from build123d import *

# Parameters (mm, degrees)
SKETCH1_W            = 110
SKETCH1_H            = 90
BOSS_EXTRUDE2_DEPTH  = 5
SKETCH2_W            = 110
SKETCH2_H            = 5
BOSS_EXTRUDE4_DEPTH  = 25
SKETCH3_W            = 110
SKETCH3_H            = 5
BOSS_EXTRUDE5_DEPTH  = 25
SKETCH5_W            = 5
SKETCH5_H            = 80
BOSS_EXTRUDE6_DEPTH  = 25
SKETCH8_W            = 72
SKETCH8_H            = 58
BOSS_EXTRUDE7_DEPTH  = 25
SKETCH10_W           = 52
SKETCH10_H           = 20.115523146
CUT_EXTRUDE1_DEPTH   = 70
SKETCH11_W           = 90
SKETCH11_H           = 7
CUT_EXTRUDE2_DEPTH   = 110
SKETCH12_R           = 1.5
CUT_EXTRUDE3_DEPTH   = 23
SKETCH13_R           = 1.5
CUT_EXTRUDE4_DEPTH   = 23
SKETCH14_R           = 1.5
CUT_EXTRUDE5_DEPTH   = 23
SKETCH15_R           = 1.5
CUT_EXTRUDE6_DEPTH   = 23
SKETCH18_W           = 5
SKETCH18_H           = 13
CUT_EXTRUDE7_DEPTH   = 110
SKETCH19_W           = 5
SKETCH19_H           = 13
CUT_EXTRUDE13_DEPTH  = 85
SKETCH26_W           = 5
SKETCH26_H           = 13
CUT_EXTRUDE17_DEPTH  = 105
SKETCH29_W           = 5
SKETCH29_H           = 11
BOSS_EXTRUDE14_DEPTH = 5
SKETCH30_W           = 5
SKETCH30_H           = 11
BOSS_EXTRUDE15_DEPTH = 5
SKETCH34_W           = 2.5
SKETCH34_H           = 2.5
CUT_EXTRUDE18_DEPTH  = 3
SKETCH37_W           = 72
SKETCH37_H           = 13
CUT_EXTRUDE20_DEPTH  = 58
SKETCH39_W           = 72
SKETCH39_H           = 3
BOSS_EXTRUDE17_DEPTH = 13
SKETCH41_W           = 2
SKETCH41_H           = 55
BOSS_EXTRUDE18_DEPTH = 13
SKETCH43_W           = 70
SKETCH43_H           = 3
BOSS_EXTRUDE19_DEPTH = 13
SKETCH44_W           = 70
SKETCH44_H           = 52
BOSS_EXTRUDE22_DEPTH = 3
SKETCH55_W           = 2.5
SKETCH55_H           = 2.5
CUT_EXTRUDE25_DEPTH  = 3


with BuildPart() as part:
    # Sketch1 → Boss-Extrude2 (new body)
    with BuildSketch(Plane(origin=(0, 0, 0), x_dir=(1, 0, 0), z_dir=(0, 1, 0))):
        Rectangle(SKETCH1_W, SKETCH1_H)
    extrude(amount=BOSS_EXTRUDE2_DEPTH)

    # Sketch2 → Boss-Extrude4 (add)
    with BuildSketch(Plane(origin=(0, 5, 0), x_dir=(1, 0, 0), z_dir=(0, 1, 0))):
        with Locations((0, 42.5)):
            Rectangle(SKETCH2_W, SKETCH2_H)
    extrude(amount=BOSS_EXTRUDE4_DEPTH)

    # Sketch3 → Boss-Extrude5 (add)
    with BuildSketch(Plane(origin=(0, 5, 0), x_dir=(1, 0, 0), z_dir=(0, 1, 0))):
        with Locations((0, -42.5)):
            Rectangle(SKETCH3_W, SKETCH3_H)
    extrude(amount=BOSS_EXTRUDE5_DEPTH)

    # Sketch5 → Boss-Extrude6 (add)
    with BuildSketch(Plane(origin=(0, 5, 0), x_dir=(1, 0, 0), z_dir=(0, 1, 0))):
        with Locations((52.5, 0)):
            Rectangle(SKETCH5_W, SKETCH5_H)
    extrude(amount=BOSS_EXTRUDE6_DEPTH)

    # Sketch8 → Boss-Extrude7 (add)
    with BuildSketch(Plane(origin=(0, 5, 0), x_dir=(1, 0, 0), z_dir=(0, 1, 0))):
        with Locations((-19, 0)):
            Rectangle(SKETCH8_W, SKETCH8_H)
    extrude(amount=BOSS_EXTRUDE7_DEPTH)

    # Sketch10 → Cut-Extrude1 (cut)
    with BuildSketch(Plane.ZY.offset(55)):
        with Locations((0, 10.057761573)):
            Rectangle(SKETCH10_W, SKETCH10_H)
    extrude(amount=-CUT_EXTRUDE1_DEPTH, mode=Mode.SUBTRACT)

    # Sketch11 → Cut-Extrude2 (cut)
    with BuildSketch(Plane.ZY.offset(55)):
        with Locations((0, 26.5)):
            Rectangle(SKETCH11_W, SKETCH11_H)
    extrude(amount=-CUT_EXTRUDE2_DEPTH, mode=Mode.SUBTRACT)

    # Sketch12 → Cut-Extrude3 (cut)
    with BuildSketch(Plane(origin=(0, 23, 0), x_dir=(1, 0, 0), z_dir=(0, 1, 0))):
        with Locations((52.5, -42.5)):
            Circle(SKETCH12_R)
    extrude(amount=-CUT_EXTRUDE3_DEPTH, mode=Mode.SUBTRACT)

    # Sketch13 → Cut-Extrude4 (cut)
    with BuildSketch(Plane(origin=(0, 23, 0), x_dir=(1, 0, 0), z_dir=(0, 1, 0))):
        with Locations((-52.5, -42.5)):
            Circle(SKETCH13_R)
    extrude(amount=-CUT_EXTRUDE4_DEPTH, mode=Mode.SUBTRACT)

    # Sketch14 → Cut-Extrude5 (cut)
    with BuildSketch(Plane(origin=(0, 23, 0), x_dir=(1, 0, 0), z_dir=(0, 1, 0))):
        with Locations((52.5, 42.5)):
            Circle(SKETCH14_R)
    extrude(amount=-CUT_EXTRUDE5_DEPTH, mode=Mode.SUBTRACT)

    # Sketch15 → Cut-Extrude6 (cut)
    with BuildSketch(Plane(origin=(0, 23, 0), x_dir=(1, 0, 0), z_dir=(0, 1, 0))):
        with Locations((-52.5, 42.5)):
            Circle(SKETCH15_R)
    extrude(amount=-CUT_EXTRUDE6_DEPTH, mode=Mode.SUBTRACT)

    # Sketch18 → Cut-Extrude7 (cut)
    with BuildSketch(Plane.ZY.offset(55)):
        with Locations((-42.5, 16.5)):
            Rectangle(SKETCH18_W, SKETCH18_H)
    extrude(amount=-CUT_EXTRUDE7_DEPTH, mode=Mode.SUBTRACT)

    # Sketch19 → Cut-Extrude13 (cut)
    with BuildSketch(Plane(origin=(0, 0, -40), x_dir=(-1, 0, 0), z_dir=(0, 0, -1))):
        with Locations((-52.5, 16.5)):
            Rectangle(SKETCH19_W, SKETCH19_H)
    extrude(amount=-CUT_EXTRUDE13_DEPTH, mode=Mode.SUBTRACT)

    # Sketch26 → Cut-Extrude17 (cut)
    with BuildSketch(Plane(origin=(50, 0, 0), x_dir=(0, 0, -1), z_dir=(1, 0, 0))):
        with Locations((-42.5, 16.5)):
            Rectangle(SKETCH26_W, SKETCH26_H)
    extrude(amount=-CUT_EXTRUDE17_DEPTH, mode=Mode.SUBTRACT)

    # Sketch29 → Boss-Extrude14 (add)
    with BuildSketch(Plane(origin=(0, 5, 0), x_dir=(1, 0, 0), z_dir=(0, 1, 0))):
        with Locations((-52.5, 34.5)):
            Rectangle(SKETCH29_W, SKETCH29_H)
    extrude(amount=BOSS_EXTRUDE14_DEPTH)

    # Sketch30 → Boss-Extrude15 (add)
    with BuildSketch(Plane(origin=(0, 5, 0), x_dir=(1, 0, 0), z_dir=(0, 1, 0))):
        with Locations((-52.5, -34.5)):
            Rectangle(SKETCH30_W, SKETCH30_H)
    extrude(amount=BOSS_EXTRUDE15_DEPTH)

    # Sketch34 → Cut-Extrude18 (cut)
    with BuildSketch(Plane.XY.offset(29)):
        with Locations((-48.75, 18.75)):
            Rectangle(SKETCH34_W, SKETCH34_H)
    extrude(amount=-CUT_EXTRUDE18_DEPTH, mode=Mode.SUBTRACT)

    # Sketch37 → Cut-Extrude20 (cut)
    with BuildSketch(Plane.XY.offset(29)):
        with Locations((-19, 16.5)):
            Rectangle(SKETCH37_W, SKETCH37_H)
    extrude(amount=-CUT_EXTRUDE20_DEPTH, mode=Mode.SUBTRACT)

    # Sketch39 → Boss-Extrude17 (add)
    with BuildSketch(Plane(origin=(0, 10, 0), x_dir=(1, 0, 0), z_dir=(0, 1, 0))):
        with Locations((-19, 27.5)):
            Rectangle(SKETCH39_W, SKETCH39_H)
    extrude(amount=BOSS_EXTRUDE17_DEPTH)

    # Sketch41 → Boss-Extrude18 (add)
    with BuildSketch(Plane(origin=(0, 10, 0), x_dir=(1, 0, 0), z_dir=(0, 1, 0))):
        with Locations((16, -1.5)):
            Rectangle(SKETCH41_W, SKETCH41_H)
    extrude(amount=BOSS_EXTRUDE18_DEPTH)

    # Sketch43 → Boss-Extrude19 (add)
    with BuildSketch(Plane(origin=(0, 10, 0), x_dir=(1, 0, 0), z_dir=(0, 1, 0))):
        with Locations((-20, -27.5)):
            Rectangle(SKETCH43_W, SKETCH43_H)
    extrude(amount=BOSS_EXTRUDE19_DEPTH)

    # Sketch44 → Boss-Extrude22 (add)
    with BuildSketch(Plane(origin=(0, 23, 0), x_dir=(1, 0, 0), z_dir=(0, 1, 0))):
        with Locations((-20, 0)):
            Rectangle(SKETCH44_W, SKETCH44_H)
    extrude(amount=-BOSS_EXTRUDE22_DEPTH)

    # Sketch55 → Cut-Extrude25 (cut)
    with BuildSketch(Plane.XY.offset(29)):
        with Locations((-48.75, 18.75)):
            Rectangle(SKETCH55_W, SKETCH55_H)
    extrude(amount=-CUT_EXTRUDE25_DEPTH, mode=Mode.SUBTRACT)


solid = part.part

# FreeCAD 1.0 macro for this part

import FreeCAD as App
import Part
import Sketcher
from FreeCAD import Vector


def add_polygon(sketch, points):
    """Adds a closed chain of lines whose ends are joined by coincident constraints."""
    first, n = sketch.GeometryCount, len(points)
    for a, b in zip(points, points[1:] + points[:1]):
        sketch.addGeometry(Part.LineSegment(App.Vector(*a, 0), App.Vector(*b, 0)), False)
    for i in range(n):
        sketch.addConstraint(Sketcher.Constraint("Coincident", first + i, 2, first + (i + 1) % n, 1))

doc = App.newDocument("Part")
body = doc.addObject("PartDesign::Body", "Body")

sketch1 = body.newObject("Sketcher::SketchObject", "Sketch")
sketch1.AttachmentSupport = (doc.getObject("XZ_Plane"), [""])
sketch1.MapMode = "FlatFace"
add_polygon(sketch1, [(-55, -45), (-55, 45), (55, 45), (55, -45)])
sketch1.addConstraint([
    Sketcher.Constraint("Vertical", 0),
    Sketcher.Constraint("Horizontal", 1),
    Sketcher.Constraint("Vertical", 2),
    Sketcher.Constraint("Horizontal", 3),
    Sketcher.Constraint("Symmetric", 0, 2, 2, 2, -1, 1),
    Sketcher.Constraint("DistanceX", 1, 1, 1, 2, 110.0),
    Sketcher.Constraint("DistanceY", 0, 1, 0, 2, 90.0),
])
pad1 = body.newObject("PartDesign::Pad", "Pad")
pad1.Profile = sketch1
pad1.Length = 5
pad1.Reversed = True

sketch2 = body.newObject("Sketcher::SketchObject", "Sketch001")
sketch2.AttachmentSupport = (doc.getObject("XZ_Plane"), [""])
sketch2.MapMode = "FlatFace"
sketch2.AttachmentOffset = App.Placement(Vector(0, 0, -5), App.Rotation())
add_polygon(sketch2, [(-55, -45), (-55, -40), (55, -40), (55, -45)])
sketch2.addConstraint([
    Sketcher.Constraint("Vertical", 0),
    Sketcher.Constraint("Horizontal", 1),
    Sketcher.Constraint("Vertical", 2),
    Sketcher.Constraint("Horizontal", 3),
    Sketcher.Constraint("DistanceX", 1, 1, 1, 2, 110.0),
    Sketcher.Constraint("DistanceY", 0, 1, 0, 2, 5.0),
    Sketcher.Constraint("DistanceX", 0, 2, -1, 1, 55.0),
    Sketcher.Constraint("DistanceY", 0, 2, -1, 1, 40.0),
])
pad2 = body.newObject("PartDesign::Pad", "Pad001")
pad2.Profile = sketch2
pad2.Length = 25
pad2.Reversed = True

sketch3 = body.newObject("Sketcher::SketchObject", "Sketch002")
sketch3.AttachmentSupport = (doc.getObject("XZ_Plane"), [""])
sketch3.MapMode = "FlatFace"
sketch3.AttachmentOffset = App.Placement(Vector(0, 0, -5), App.Rotation())
add_polygon(sketch3, [(-55, 40), (-55, 45), (55, 45), (55, 40)])
sketch3.addConstraint([
    Sketcher.Constraint("Vertical", 0),
    Sketcher.Constraint("Horizontal", 1),
    Sketcher.Constraint("Vertical", 2),
    Sketcher.Constraint("Horizontal", 3),
    Sketcher.Constraint("DistanceX", 1, 1, 1, 2, 110.0),
    Sketcher.Constraint("DistanceY", 0, 1, 0, 2, 5.0),
    Sketcher.Constraint("DistanceX", 0, 2, -1, 1, 55.0),
    Sketcher.Constraint("DistanceY", -1, 1, 0, 2, 45.0),
])
pad3 = body.newObject("PartDesign::Pad", "Pad002")
pad3.Profile = sketch3
pad3.Length = 25
pad3.Reversed = True

sketch4 = body.newObject("Sketcher::SketchObject", "Sketch003")
sketch4.AttachmentSupport = (doc.getObject("XZ_Plane"), [""])
sketch4.MapMode = "FlatFace"
sketch4.AttachmentOffset = App.Placement(Vector(0, 0, -5), App.Rotation())
add_polygon(sketch4, [(50, -40), (50, 40), (55, 40), (55, -40)])
sketch4.addConstraint([
    Sketcher.Constraint("Vertical", 0),
    Sketcher.Constraint("Horizontal", 1),
    Sketcher.Constraint("Vertical", 2),
    Sketcher.Constraint("Horizontal", 3),
    Sketcher.Constraint("DistanceX", 1, 1, 1, 2, 5.0),
    Sketcher.Constraint("DistanceY", 0, 1, 0, 2, 80.0),
    Sketcher.Constraint("DistanceX", -1, 1, 0, 2, 50.0),
    Sketcher.Constraint("DistanceY", -1, 1, 0, 2, 40.0),
])
pad4 = body.newObject("PartDesign::Pad", "Pad003")
pad4.Profile = sketch4
pad4.Length = 25
pad4.Reversed = True

sketch5 = body.newObject("Sketcher::SketchObject", "Sketch004")
sketch5.AttachmentSupport = (doc.getObject("XZ_Plane"), [""])
sketch5.MapMode = "FlatFace"
sketch5.AttachmentOffset = App.Placement(Vector(0, 0, -5), App.Rotation())
add_polygon(sketch5, [(-55, -29), (-55, 29), (17, 29), (17, -29)])
sketch5.addConstraint([
    Sketcher.Constraint("Vertical", 0),
    Sketcher.Constraint("Horizontal", 1),
    Sketcher.Constraint("Vertical", 2),
    Sketcher.Constraint("Horizontal", 3),
    Sketcher.Constraint("DistanceX", 1, 1, 1, 2, 72.0),
    Sketcher.Constraint("DistanceY", 0, 1, 0, 2, 58.0),
    Sketcher.Constraint("DistanceX", 0, 2, -1, 1, 55.0),
    Sketcher.Constraint("DistanceY", -1, 1, 0, 2, 29.0),
])
pad5 = body.newObject("PartDesign::Pad", "Pad004")
pad5.Profile = sketch5
pad5.Length = 25
pad5.Reversed = True

sketch6 = body.newObject("Sketcher::SketchObject", "Sketch005")
sketch6.AttachmentSupport = (doc.getObject("YZ_Plane"), [""])
sketch6.MapMode = "FlatFace"
sketch6.AttachmentOffset = App.Placement(Vector(0, 0, -55), App.Rotation())
add_polygon(sketch6, [(20, -26), (0, -26), (0, 26), (20, 26)])
sketch6.addConstraint([
    Sketcher.Constraint("Horizontal", 0),
    Sketcher.Constraint("Vertical", 1),
    Sketcher.Constraint("Horizontal", 2),
    Sketcher.Constraint("Vertical", 3),
    Sketcher.Constraint("Symmetric", 0, 2, 1, 2, -1, 1),
    Sketcher.Constraint("DistanceY", 1, 1, 1, 2, 52.0),
    Sketcher.Constraint("DistanceX", 0, 2, 0, 1, 20.115523),
])
pocket1 = body.newObject("PartDesign::Pocket", "Pocket")
pocket1.Profile = sketch6
pocket1.Length = 70
pocket1.Reversed = True

sketch7 = body.newObject("Sketcher::SketchObject", "Sketch006")
sketch7.AttachmentSupport = (doc.getObject("YZ_Plane"), [""])
sketch7.MapMode = "FlatFace"
sketch7.AttachmentOffset = App.Placement(Vector(0, 0, -55), App.Rotation())
add_polygon(sketch7, [(30, -45), (23, -45), (23, 45), (30, 45)])
sketch7.addConstraint([
    Sketcher.Constraint("Horizontal", 0),
    Sketcher.Constraint("Vertical", 1),
    Sketcher.Constraint("Horizontal", 2),
    Sketcher.Constraint("Vertical", 3),
    Sketcher.Constraint("DistanceX", 0, 2, 0, 1, 7.0),
    Sketcher.Constraint("DistanceY", 1, 1, 1, 2, 90.0),
    Sketcher.Constraint("DistanceX", -1, 1, 0, 2, 23.0),
    Sketcher.Constraint("DistanceY", 0, 2, -1, 1, 45.0),
])
pocket2 = body.newObject("PartDesign::Pocket", "Pocket001")
pocket2.Profile = sketch7
pocket2.Length = 110
pocket2.Reversed = True

sketch8 = body.newObject("Sketcher::SketchObject", "Sketch007")
sketch8.AttachmentSupport = (doc.getObject("XZ_Plane"), [""])
sketch8.MapMode = "FlatFace"
sketch8.AttachmentOffset = App.Placement(Vector(0, 0, -23), App.Rotation())
sketch8.addGeometry(Part.Circle(Vector(52.5, 42.5, 0), Vector(0, 0, 1), 1.5), False)
sketch8.addConstraint([
    Sketcher.Constraint("Diameter", 0, 3.0),
    Sketcher.Constraint("DistanceX", -1, 1, 0, 3, 52.5),
    Sketcher.Constraint("DistanceY", -1, 1, 0, 3, 42.5),
])
pocket3 = body.newObject("PartDesign::Pocket", "Pocket002")
pocket3.Profile = sketch8
pocket3.Length = 23
pocket3.Reversed = True

sketch9 = body.newObject("Sketcher::SketchObject", "Sketch008")
sketch9.AttachmentSupport = (doc.getObject("XZ_Plane"), [""])
sketch9.MapMode = "FlatFace"
sketch9.AttachmentOffset = App.Placement(Vector(0, 0, -23), App.Rotation())
sketch9.addGeometry(Part.Circle(Vector(-52.5, 42.5, 0), Vector(0, 0, 1), 1.5), False)
sketch9.addConstraint([
    Sketcher.Constraint("Diameter", 0, 3.0),
    Sketcher.Constraint("DistanceX", 0, 3, -1, 1, 52.5),
    Sketcher.Constraint("DistanceY", -1, 1, 0, 3, 42.5),
])
pocket4 = body.newObject("PartDesign::Pocket", "Pocket003")
pocket4.Profile = sketch9
pocket4.Length = 23
pocket4.Reversed = True

sketch10 = body.newObject("Sketcher::SketchObject", "Sketch009")
sketch10.AttachmentSupport = (doc.getObject("XZ_Plane"), [""])
sketch10.MapMode = "FlatFace"
sketch10.AttachmentOffset = App.Placement(Vector(0, 0, -23), App.Rotation())
sketch10.addGeometry(Part.Circle(Vector(52.5, -42.5, 0), Vector(0, 0, 1), 1.5), False)
sketch10.addConstraint([
    Sketcher.Constraint("Diameter", 0, 3.0),
    Sketcher.Constraint("DistanceX", -1, 1, 0, 3, 52.5),
    Sketcher.Constraint("DistanceY", 0, 3, -1, 1, 42.5),
])
pocket5 = body.newObject("PartDesign::Pocket", "Pocket004")
pocket5.Profile = sketch10
pocket5.Length = 23
pocket5.Reversed = True

sketch11 = body.newObject("Sketcher::SketchObject", "Sketch010")
sketch11.AttachmentSupport = (doc.getObject("XZ_Plane"), [""])
sketch11.MapMode = "FlatFace"
sketch11.AttachmentOffset = App.Placement(Vector(0, 0, -23), App.Rotation())
sketch11.addGeometry(Part.Circle(Vector(-52.5, -42.5, 0), Vector(0, 0, 1), 1.5), False)
sketch11.addConstraint([
    Sketcher.Constraint("Diameter", 0, 3.0),
    Sketcher.Constraint("DistanceX", 0, 3, -1, 1, 52.5),
    Sketcher.Constraint("DistanceY", 0, 3, -1, 1, 42.5),
])
pocket6 = body.newObject("PartDesign::Pocket", "Pocket005")
pocket6.Profile = sketch11
pocket6.Length = 23
pocket6.Reversed = True

sketch12 = body.newObject("Sketcher::SketchObject", "Sketch011")
sketch12.AttachmentSupport = (doc.getObject("YZ_Plane"), [""])
sketch12.MapMode = "FlatFace"
sketch12.AttachmentOffset = App.Placement(Vector(0, 0, -55), App.Rotation())
add_polygon(sketch12, [(23, -45), (10, -45), (10, -40), (23, -40)])
sketch12.addConstraint([
    Sketcher.Constraint("Horizontal", 0),
    Sketcher.Constraint("Vertical", 1),
    Sketcher.Constraint("Horizontal", 2),
    Sketcher.Constraint("Vertical", 3),
    Sketcher.Constraint("DistanceX", 0, 2, 0, 1, 13.0),
    Sketcher.Constraint("DistanceY", 1, 1, 1, 2, 5.0),
    Sketcher.Constraint("DistanceX", -1, 1, 0, 2, 10.0),
    Sketcher.Constraint("DistanceY", 0, 2, -1, 1, 45.0),
])
pocket7 = body.newObject("PartDesign::Pocket", "Pocket006")
pocket7.Profile = sketch12
pocket7.Length = 110
pocket7.Reversed = True

sketch13 = body.newObject("Sketcher::SketchObject", "Sketch012")
sketch13.AttachmentSupport = (doc.getObject("XY_Plane"), [""])
sketch13.MapMode = "FlatFace"
sketch13.AttachmentOffset = App.Placement(Vector(0, 0, -40), App.Rotation())
add_polygon(sketch13, [(55, 23), (55, 10), (50, 10), (50, 23)])
sketch13.addConstraint([
    Sketcher.Constraint("Vertical", 0),
    Sketcher.Constraint("Horizontal", 1),
    Sketcher.Constraint("Vertical", 2),
    Sketcher.Constraint("Horizontal", 3),
    Sketcher.Constraint("DistanceX", 1, 2, 1, 1, 5.0),
    Sketcher.Constraint("DistanceY", 0, 2, 0, 1, 13.0),
    Sketcher.Constraint("DistanceX", -1, 1, 0, 2, 55.0),
    Sketcher.Constraint("DistanceY", -1, 1, 0, 2, 10.0),
])
pocket8 = body.newObject("PartDesign::Pocket", "Pocket007")
pocket8.Profile = sketch13
pocket8.Length = 85
pocket8.Reversed = True

sketch14 = body.newObject("Sketcher::SketchObject", "Sketch013")
sketch14.AttachmentSupport = (doc.getObject("YZ_Plane"), [""])
sketch14.MapMode = "FlatFace"
sketch14.AttachmentOffset = App.Placement(Vector(0, 0, 50), App.Rotation())
add_polygon(sketch14, [(23, 45), (10, 45), (10, 40), (23, 40)])
sketch14.addConstraint([
    Sketcher.Constraint("Horizontal", 0),
    Sketcher.Constraint("Vertical", 1),
    Sketcher.Constraint("Horizontal", 2),
    Sketcher.Constraint("Vertical", 3),
    Sketcher.Constraint("DistanceX", 0, 2, 0, 1, 13.0),
    Sketcher.Constraint("DistanceY", 1, 2, 1, 1, 5.0),
    Sketcher.Constraint("DistanceX", -1, 1, 0, 2, 10.0),
    Sketcher.Constraint("DistanceY", -1, 1, 0, 2, 45.0),
])
pocket9 = body.newObject("PartDesign::Pocket", "Pocket008")
pocket9.Profile = sketch14
pocket9.Length = 105

sketch15 = body.newObject("Sketcher::SketchObject", "Sketch014")
sketch15.AttachmentSupport = (doc.getObject("XZ_Plane"), [""])
sketch15.MapMode = "FlatFace"
sketch15.AttachmentOffset = App.Placement(Vector(0, 0, -5), App.Rotation())
add_polygon(sketch15, [(-55, -40), (-55, -29), (-50, -29), (-50, -40)])
sketch15.addConstraint([
    Sketcher.Constraint("Vertical", 0),
    Sketcher.Constraint("Horizontal", 1),
    Sketcher.Constraint("Vertical", 2),
    Sketcher.Constraint("Horizontal", 3),
    Sketcher.Constraint("DistanceX", 1, 1, 1, 2, 5.0),
    Sketcher.Constraint("DistanceY", 0, 1, 0, 2, 11.0),
    Sketcher.Constraint("DistanceX", 0, 2, -1, 1, 55.0),
    Sketcher.Constraint("DistanceY", 0, 2, -1, 1, 29.0),
])
pad6 = body.newObject("PartDesign::Pad", "Pad005")
pad6.Profile = sketch15
pad6.Length = 5
pad6.Reversed = True

sketch16 = body.newObject("Sketcher::SketchObject", "Sketch015")
sketch16.AttachmentSupport = (doc.getObject("XZ_Plane"), [""])
sketch16.MapMode = "FlatFace"
sketch16.AttachmentOffset = App.Placement(Vector(0, 0, -5), App.Rotation())
add_polygon(sketch16, [(-55, 29), (-55, 40), (-50, 40), (-50, 29)])
sketch16.addConstraint([
    Sketcher.Constraint("Vertical", 0),
    Sketcher.Constraint("Horizontal", 1),
    Sketcher.Constraint("Vertical", 2),
    Sketcher.Constraint("Horizontal", 3),
    Sketcher.Constraint("DistanceX", 1, 1, 1, 2, 5.0),
    Sketcher.Constraint("DistanceY", 0, 1, 0, 2, 11.0),
    Sketcher.Constraint("DistanceX", 0, 2, -1, 1, 55.0),
    Sketcher.Constraint("DistanceY", -1, 1, 0, 2, 40.0),
])
pad7 = body.newObject("PartDesign::Pad", "Pad006")
pad7.Profile = sketch16
pad7.Length = 5
pad7.Reversed = True

sketch17 = body.newObject("Sketcher::SketchObject", "Sketch016")
sketch17.AttachmentSupport = (doc.getObject("XY_Plane"), [""])
sketch17.MapMode = "FlatFace"
sketch17.AttachmentOffset = App.Placement(Vector(0, 0, 29), App.Rotation())
add_polygon(sketch17, [(-50, 20), (-50, 17.5), (-47.5, 17.5), (-47.5, 20)])
sketch17.addConstraint([
    Sketcher.Constraint("Vertical", 0),
    Sketcher.Constraint("Horizontal", 1),
    Sketcher.Constraint("Vertical", 2),
    Sketcher.Constraint("Horizontal", 3),
    Sketcher.Constraint("Equal", 3, 0),
    Sketcher.Constraint("DistanceX", 1, 1, 1, 2, 2.5),
    Sketcher.Constraint("DistanceX", 0, 2, -1, 1, 50.0),
    Sketcher.Constraint("DistanceY", -1, 1, 2, 2, 20.0),
])
pocket10 = body.newObject("PartDesign::Pocket", "Pocket009")
pocket10.Profile = sketch17
pocket10.Length = 3

sketch18 = body.newObject("Sketcher::SketchObject", "Sketch017")
sketch18.AttachmentSupport = (doc.getObject("XY_Plane"), [""])
sketch18.MapMode = "FlatFace"
sketch18.AttachmentOffset = App.Placement(Vector(0, 0, 29), App.Rotation())
add_polygon(sketch18, [(-55, 23), (-55, 10), (17, 10), (17, 23)])
sketch18.addConstraint([
    Sketcher.Constraint("Vertical", 0),
    Sketcher.Constraint("Horizontal", 1),
    Sketcher.Constraint("Vertical", 2),
    Sketcher.Constraint("Horizontal", 3),
    Sketcher.Constraint("DistanceX", 1, 1, 1, 2, 72.0),
    Sketcher.Constraint("DistanceY", 0, 2, 0, 1, 13.0),
    Sketcher.Constraint("DistanceX", 0, 2, -1, 1, 55.0),
    Sketcher.Constraint("DistanceY", -1, 1, 0, 2, 10.0),
])
pocket11 = body.newObject("PartDesign::Pocket", "Pocket010")
pocket11.Profile = sketch18
pocket11.Length = 58

sketch19 = body.newObject("Sketcher::SketchObject", "Sketch018")
sketch19.AttachmentSupport = (doc.getObject("XZ_Plane"), [""])
sketch19.MapMode = "FlatFace"
sketch19.AttachmentOffset = App.Placement(Vector(0, 0, -10), App.Rotation())
add_polygon(sketch19, [(-55, -29), (-55, -26), (17, -26), (17, -29)])
sketch19.addConstraint([
    Sketcher.Constraint("Vertical", 0),
    Sketcher.Constraint("Horizontal", 1),
    Sketcher.Constraint("Vertical", 2),
    Sketcher.Constraint("Horizontal", 3),
    Sketcher.Constraint("DistanceX", 1, 1, 1, 2, 72.0),
    Sketcher.Constraint("DistanceY", 0, 1, 0, 2, 3.0),
    Sketcher.Constraint("DistanceX", 0, 2, -1, 1, 55.0),
    Sketcher.Constraint("DistanceY", 0, 2, -1, 1, 26.0),
])
pad8 = body.newObject("PartDesign::Pad", "Pad007")
pad8.Profile = sketch19
pad8.Length = 13
pad8.Reversed = True

sketch20 = body.newObject("Sketcher::SketchObject", "Sketch019")
sketch20.AttachmentSupport = (doc.getObject("XZ_Plane"), [""])
sketch20.MapMode = "FlatFace"
sketch20.AttachmentOffset = App.Placement(Vector(0, 0, -10), App.Rotation())
add_polygon(sketch20, [(15, -26), (15, 29), (17, 29), (17, -26)])
sketch20.addConstraint([
    Sketcher.Constraint("Vertical", 0),
    Sketcher.Constraint("Horizontal", 1),
    Sketcher.Constraint("Vertical", 2),
    Sketcher.Constraint("Horizontal", 3),
    Sketcher.Constraint("DistanceX", 1, 1, 1, 2, 2.0),
    Sketcher.Constraint("DistanceY", 0, 1, 0, 2, 55.0),
    Sketcher.Constraint("DistanceX", -1, 1, 0, 2, 15.0),
    Sketcher.Constraint("DistanceY", -1, 1, 0, 2, 29.0),
])
pad9 = body.newObject("PartDesign::Pad", "Pad008")
pad9.Profile = sketch20
pad9.Length = 13
pad9.Reversed = True

sketch21 = body.newObject("Sketcher::SketchObject", "Sketch020")
sketch21.AttachmentSupport = (doc.getObject("XZ_Plane"), [""])
sketch21.MapMode = "FlatFace"
sketch21.AttachmentOffset = App.Placement(Vector(0, 0, -10), App.Rotation())
add_polygon(sketch21, [(-55, 26), (-55, 29), (15, 29), (15, 26)])
sketch21.addConstraint([
    Sketcher.Constraint("Vertical", 0),
    Sketcher.Constraint("Horizontal", 1),
    Sketcher.Constraint("Vertical", 2),
    Sketcher.Constraint("Horizontal", 3),
    Sketcher.Constraint("DistanceX", 1, 1, 1, 2, 70.0),
    Sketcher.Constraint("DistanceY", 0, 1, 0, 2, 3.0),
    Sketcher.Constraint("DistanceX", 0, 2, -1, 1, 55.0),
    Sketcher.Constraint("DistanceY", -1, 1, 0, 2, 29.0),
])
pad10 = body.newObject("PartDesign::Pad", "Pad009")
pad10.Profile = sketch21
pad10.Length = 13
pad10.Reversed = True

sketch22 = body.newObject("Sketcher::SketchObject", "Sketch021")
sketch22.AttachmentSupport = (doc.getObject("XZ_Plane"), [""])
sketch22.MapMode = "FlatFace"
sketch22.AttachmentOffset = App.Placement(Vector(0, 0, -23), App.Rotation())
add_polygon(sketch22, [(-55, -26), (-55, 26), (15, 26), (15, -26)])
sketch22.addConstraint([
    Sketcher.Constraint("Vertical", 0),
    Sketcher.Constraint("Horizontal", 1),
    Sketcher.Constraint("Vertical", 2),
    Sketcher.Constraint("Horizontal", 3),
    Sketcher.Constraint("DistanceX", 1, 1, 1, 2, 70.0),
    Sketcher.Constraint("DistanceY", 0, 1, 0, 2, 52.0),
    Sketcher.Constraint("DistanceX", 0, 2, -1, 1, 55.0),
    Sketcher.Constraint("DistanceY", -1, 1, 0, 2, 26.0),
])
pad11 = body.newObject("PartDesign::Pad", "Pad010")
pad11.Profile = sketch22
pad11.Length = 3

sketch23 = body.newObject("Sketcher::SketchObject", "Sketch022")
sketch23.AttachmentSupport = (doc.getObject("XY_Plane"), [""])
sketch23.MapMode = "FlatFace"
sketch23.AttachmentOffset = App.Placement(Vector(0, 0, 29), App.Rotation())
add_polygon(sketch23, [(-50, 20), (-50, 17.5), (-47.5, 17.5), (-47.5, 20)])
sketch23.addConstraint([
    Sketcher.Constraint("Vertical", 0),
    Sketcher.Constraint("Horizontal", 1),
    Sketcher.Constraint("Vertical", 2),
    Sketcher.Constraint("Horizontal", 3),
    Sketcher.Constraint("Equal", 3, 0),
    Sketcher.Constraint("DistanceX", 1, 1, 1, 2, 2.5),
    Sketcher.Constraint("DistanceX", 0, 2, -1, 1, 50.0),
    Sketcher.Constraint("DistanceY", -1, 1, 2, 2, 20.0),
])
pocket12 = body.newObject("PartDesign::Pocket", "Pocket011")
pocket12.Profile = sketch23
pocket12.Length = 3

doc.recompute()
